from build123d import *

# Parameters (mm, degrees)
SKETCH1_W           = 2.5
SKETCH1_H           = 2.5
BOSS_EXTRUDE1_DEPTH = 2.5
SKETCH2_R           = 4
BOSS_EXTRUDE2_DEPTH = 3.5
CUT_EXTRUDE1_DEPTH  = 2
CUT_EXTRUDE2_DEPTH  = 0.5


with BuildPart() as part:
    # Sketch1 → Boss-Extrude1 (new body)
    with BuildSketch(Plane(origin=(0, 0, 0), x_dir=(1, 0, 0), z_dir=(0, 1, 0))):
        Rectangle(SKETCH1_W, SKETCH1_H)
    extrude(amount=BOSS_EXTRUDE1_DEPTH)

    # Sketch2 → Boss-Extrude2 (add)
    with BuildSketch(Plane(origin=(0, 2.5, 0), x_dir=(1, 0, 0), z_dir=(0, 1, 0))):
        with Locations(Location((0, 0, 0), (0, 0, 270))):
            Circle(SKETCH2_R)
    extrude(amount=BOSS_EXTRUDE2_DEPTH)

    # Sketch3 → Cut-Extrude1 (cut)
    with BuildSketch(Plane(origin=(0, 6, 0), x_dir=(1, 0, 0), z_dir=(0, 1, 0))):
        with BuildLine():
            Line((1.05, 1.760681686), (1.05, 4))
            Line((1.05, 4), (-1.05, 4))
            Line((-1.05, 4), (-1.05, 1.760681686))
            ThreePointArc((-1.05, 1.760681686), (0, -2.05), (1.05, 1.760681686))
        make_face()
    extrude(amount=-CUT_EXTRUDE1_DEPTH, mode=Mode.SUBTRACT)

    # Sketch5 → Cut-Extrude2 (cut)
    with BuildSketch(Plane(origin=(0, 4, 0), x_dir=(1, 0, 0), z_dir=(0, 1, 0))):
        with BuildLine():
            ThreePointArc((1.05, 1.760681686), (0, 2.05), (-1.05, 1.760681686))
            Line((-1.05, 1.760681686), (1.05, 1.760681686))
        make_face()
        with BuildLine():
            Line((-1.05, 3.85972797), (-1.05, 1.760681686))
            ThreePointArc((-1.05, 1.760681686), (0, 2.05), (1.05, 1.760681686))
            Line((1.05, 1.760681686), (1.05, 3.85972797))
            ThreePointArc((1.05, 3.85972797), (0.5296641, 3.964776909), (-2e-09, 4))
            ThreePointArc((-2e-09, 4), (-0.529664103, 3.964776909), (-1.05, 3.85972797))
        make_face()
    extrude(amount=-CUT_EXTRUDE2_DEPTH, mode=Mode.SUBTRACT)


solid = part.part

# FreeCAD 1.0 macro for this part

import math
import FreeCAD as App
import Part
import Sketcher
from FreeCAD import Vector
Q = App.Units.Quantity

doc = App.newDocument("Part")
body = doc.addObject("PartDesign::Body", "Body")

sketch1 = body.newObject("Sketcher::SketchObject", "Sketch")
sketch1.AttachmentSupport = (doc.getObject("XZ_Plane"), [""])
sketch1.MapMode = "FlatFace"
sketch1.addGeometry(Part.LineSegment(Vector(-1.2, -1.2, 0), Vector(-1.2, 1.2, 0)), False)
sketch1.addGeometry(Part.LineSegment(Vector(-1.2, 1.2, 0), Vector(1.2, 1.2, 0)), False)
sketch1.addGeometry(Part.LineSegment(Vector(1.2, 1.2, 0), Vector(1.2, -1.2, 0)), False)
sketch1.addGeometry(Part.LineSegment(Vector(1.2, -1.2, 0), Vector(-1.2, -1.2, 0)), False)
sketch1.addConstraint(Sketcher.Constraint("Coincident", 0, 2, 1, 1))
sketch1.addConstraint(Sketcher.Constraint("Coincident", 1, 2, 2, 1))
sketch1.addConstraint(Sketcher.Constraint("Coincident", 2, 2, 3, 1))
sketch1.addConstraint(Sketcher.Constraint("Coincident", 3, 2, 0, 1))
sketch1.addConstraint(Sketcher.Constraint("Vertical", 0))
sketch1.addConstraint(Sketcher.Constraint("Horizontal", 1))
sketch1.addConstraint(Sketcher.Constraint("Vertical", 2))
sketch1.addConstraint(Sketcher.Constraint("Horizontal", 3))
sketch1.addConstraint(Sketcher.Constraint("Symmetric", 0, 2, 2, 2, -1, 1))
sketch1.addConstraint(Sketcher.Constraint("Equal", 3, 0))
sketch1.addConstraint(Sketcher.Constraint("DistanceX", 1, 1, 1, 2, Q("2.5 mm")))
pad1 = body.newObject("PartDesign::Pad", "Pad")
pad1.Profile = sketch1
pad1.Length = 2.5
pad1.Reversed = True

sketch2 = body.newObject("Sketcher::SketchObject", "Sketch001")
sketch2.AttachmentSupport = (doc.getObject("XZ_Plane"), [""])
sketch2.MapMode = "FlatFace"
sketch2.AttachmentOffset = App.Placement(Vector(0, 0, -2.5), App.Rotation())
sketch2.addGeometry(Part.Circle(Vector(0, 0, 0), Vector(0, 0, 1), 4), False)
sketch2.addConstraint(Sketcher.Constraint("Coincident", 0, 3, -1, 1))
sketch2.addConstraint(Sketcher.Constraint("Diameter", 0, Q("8 mm")))
pad2 = body.newObject("PartDesign::Pad", "Pad001")
pad2.Profile = sketch2
pad2.Length = 3.5
pad2.Reversed = True

sketch3 = body.newObject("Sketcher::SketchObject", "Sketch002")
sketch3.AttachmentSupport = (doc.getObject("XZ_Plane"), [""])
sketch3.MapMode = "FlatFace"
sketch3.AttachmentOffset = App.Placement(Vector(0, 0, -6), App.Rotation())
sketch3.addGeometry(Part.LineSegment(Vector(1.1, -1.8, 0), Vector(1.1, -4, 0)), False)
sketch3.addGeometry(Part.LineSegment(Vector(1.1, -4, 0), Vector(-1.1, -4, 0)), False)
sketch3.addGeometry(Part.LineSegment(Vector(-1.1, -4, 0), Vector(-1.1, -1.8, 0)), False)
sketch3.addGeometry(Part.ArcOfCircle(Part.Circle(Vector(0, 0, 0), Vector(0, 0, 1), 2), math.radians(-59), math.radians(239)), False)
sketch3.addConstraint(Sketcher.Constraint("Coincident", 0, 2, 1, 1))
sketch3.addConstraint(Sketcher.Constraint("Coincident", 1, 2, 2, 1))
sketch3.addConstraint(Sketcher.Constraint("Coincident", 2, 2, 3, 2))
sketch3.addConstraint(Sketcher.Constraint("Coincident", 3, 1, 0, 1))
sketch3.addConstraint(Sketcher.Constraint("Vertical", 0))
sketch3.addConstraint(Sketcher.Constraint("Horizontal", 1))
sketch3.addConstraint(Sketcher.Constraint("Vertical", 2))
sketch3.addConstraint(Sketcher.Constraint("Coincident", 3, 3, -1, 1))
sketch3.addConstraint(Sketcher.Constraint("Horizontal", 2, 2, 3, 1))
sketch3.addConstraint(Sketcher.Constraint("Radius", 3, Q("2.05 mm")))
sketch3.addConstraint(Sketcher.Constraint("DistanceX", 1, 2, 1, 1, Q("2.1 mm")))
sketch3.addConstraint(Sketcher.Constraint("DistanceY", 0, 2, -1, 1, Q("4 mm")))
pocket1 = body.newObject("PartDesign::Pocket", "Pocket")
pocket1.Profile = sketch3
pocket1.Length = 2
pocket1.Reversed = True

sketch4 = body.newObject("Sketcher::SketchObject", "Sketch003")
sketch4.AttachmentSupport = (doc.getObject("XZ_Plane"), [""])
sketch4.MapMode = "FlatFace"
sketch4.AttachmentOffset = App.Placement(Vector(0, 0, -4), App.Rotation())
sketch4.addGeometry(Part.LineSegment(Vector(-1.1, -1.8, 0), Vector(1.1, -1.8, 0)), False)
sketch4.addGeometry(Part.LineSegment(Vector(1.1, -1.8, 0), Vector(1.1, -3.9, 0)), False)
sketch4.addGeometry(Part.ArcOfCircle(Part.Circle(Vector(0, 0, 0), Vector(0, 0, 1), 4), math.radians(-90), math.radians(-74.78)), False)
sketch4.addGeometry(Part.ArcOfCircle(Part.Circle(Vector(0, 0, 0), Vector(0, 0, 1), 4), math.radians(-105.22), math.radians(-90)), False)
sketch4.addGeometry(Part.LineSegment(Vector(-1.1, -3.9, 0), Vector(-1.1, -1.8, 0)), False)
sketch4.addConstraint(Sketcher.Constraint("Coincident", 0, 2, 1, 1))
sketch4.addConstraint(Sketcher.Constraint("Coincident", 1, 2, 2, 2))
sketch4.addConstraint(Sketcher.Constraint("Tangent", 2, 1, 3, 2))
sketch4.addConstraint(Sketcher.Constraint("Coincident", 3, 1, 4, 1))
sketch4.addConstraint(Sketcher.Constraint("Coincident", 4, 2, 0, 1))
sketch4.addConstraint(Sketcher.Constraint("Horizontal", 0))
sketch4.addConstraint(Sketcher.Constraint("Vertical", 1))
sketch4.addConstraint(Sketcher.Constraint("Vertical", 4))
sketch4.addConstraint(Sketcher.Constraint("Coincident", 2, 3, -1, 1))
sketch4.addConstraint(Sketcher.Constraint("Equal", 2, 3))
sketch4.addConstraint(Sketcher.Constraint("PointOnObject", 2, 1, -2))
sketch4.addConstraint(Sketcher.Constraint("Horizontal", 1, 2, 3, 1))
sketch4.addConstraint(Sketcher.Constraint("Radius", 2, Q("4 mm")))
sketch4.addConstraint(Sketcher.Constraint("DistanceX", 0, 1, 0, 2, Q("2.1 mm")))
sketch4.addConstraint(Sketcher.Constraint("DistanceY", 1, 2, 1, 1, Q("2.099046 mm")))
pocket2 = body.newObject("PartDesign::Pocket", "Pocket001")
pocket2.Profile = sketch4
pocket2.Length = 0.5
pocket2.Reversed = True

doc.recompute()
